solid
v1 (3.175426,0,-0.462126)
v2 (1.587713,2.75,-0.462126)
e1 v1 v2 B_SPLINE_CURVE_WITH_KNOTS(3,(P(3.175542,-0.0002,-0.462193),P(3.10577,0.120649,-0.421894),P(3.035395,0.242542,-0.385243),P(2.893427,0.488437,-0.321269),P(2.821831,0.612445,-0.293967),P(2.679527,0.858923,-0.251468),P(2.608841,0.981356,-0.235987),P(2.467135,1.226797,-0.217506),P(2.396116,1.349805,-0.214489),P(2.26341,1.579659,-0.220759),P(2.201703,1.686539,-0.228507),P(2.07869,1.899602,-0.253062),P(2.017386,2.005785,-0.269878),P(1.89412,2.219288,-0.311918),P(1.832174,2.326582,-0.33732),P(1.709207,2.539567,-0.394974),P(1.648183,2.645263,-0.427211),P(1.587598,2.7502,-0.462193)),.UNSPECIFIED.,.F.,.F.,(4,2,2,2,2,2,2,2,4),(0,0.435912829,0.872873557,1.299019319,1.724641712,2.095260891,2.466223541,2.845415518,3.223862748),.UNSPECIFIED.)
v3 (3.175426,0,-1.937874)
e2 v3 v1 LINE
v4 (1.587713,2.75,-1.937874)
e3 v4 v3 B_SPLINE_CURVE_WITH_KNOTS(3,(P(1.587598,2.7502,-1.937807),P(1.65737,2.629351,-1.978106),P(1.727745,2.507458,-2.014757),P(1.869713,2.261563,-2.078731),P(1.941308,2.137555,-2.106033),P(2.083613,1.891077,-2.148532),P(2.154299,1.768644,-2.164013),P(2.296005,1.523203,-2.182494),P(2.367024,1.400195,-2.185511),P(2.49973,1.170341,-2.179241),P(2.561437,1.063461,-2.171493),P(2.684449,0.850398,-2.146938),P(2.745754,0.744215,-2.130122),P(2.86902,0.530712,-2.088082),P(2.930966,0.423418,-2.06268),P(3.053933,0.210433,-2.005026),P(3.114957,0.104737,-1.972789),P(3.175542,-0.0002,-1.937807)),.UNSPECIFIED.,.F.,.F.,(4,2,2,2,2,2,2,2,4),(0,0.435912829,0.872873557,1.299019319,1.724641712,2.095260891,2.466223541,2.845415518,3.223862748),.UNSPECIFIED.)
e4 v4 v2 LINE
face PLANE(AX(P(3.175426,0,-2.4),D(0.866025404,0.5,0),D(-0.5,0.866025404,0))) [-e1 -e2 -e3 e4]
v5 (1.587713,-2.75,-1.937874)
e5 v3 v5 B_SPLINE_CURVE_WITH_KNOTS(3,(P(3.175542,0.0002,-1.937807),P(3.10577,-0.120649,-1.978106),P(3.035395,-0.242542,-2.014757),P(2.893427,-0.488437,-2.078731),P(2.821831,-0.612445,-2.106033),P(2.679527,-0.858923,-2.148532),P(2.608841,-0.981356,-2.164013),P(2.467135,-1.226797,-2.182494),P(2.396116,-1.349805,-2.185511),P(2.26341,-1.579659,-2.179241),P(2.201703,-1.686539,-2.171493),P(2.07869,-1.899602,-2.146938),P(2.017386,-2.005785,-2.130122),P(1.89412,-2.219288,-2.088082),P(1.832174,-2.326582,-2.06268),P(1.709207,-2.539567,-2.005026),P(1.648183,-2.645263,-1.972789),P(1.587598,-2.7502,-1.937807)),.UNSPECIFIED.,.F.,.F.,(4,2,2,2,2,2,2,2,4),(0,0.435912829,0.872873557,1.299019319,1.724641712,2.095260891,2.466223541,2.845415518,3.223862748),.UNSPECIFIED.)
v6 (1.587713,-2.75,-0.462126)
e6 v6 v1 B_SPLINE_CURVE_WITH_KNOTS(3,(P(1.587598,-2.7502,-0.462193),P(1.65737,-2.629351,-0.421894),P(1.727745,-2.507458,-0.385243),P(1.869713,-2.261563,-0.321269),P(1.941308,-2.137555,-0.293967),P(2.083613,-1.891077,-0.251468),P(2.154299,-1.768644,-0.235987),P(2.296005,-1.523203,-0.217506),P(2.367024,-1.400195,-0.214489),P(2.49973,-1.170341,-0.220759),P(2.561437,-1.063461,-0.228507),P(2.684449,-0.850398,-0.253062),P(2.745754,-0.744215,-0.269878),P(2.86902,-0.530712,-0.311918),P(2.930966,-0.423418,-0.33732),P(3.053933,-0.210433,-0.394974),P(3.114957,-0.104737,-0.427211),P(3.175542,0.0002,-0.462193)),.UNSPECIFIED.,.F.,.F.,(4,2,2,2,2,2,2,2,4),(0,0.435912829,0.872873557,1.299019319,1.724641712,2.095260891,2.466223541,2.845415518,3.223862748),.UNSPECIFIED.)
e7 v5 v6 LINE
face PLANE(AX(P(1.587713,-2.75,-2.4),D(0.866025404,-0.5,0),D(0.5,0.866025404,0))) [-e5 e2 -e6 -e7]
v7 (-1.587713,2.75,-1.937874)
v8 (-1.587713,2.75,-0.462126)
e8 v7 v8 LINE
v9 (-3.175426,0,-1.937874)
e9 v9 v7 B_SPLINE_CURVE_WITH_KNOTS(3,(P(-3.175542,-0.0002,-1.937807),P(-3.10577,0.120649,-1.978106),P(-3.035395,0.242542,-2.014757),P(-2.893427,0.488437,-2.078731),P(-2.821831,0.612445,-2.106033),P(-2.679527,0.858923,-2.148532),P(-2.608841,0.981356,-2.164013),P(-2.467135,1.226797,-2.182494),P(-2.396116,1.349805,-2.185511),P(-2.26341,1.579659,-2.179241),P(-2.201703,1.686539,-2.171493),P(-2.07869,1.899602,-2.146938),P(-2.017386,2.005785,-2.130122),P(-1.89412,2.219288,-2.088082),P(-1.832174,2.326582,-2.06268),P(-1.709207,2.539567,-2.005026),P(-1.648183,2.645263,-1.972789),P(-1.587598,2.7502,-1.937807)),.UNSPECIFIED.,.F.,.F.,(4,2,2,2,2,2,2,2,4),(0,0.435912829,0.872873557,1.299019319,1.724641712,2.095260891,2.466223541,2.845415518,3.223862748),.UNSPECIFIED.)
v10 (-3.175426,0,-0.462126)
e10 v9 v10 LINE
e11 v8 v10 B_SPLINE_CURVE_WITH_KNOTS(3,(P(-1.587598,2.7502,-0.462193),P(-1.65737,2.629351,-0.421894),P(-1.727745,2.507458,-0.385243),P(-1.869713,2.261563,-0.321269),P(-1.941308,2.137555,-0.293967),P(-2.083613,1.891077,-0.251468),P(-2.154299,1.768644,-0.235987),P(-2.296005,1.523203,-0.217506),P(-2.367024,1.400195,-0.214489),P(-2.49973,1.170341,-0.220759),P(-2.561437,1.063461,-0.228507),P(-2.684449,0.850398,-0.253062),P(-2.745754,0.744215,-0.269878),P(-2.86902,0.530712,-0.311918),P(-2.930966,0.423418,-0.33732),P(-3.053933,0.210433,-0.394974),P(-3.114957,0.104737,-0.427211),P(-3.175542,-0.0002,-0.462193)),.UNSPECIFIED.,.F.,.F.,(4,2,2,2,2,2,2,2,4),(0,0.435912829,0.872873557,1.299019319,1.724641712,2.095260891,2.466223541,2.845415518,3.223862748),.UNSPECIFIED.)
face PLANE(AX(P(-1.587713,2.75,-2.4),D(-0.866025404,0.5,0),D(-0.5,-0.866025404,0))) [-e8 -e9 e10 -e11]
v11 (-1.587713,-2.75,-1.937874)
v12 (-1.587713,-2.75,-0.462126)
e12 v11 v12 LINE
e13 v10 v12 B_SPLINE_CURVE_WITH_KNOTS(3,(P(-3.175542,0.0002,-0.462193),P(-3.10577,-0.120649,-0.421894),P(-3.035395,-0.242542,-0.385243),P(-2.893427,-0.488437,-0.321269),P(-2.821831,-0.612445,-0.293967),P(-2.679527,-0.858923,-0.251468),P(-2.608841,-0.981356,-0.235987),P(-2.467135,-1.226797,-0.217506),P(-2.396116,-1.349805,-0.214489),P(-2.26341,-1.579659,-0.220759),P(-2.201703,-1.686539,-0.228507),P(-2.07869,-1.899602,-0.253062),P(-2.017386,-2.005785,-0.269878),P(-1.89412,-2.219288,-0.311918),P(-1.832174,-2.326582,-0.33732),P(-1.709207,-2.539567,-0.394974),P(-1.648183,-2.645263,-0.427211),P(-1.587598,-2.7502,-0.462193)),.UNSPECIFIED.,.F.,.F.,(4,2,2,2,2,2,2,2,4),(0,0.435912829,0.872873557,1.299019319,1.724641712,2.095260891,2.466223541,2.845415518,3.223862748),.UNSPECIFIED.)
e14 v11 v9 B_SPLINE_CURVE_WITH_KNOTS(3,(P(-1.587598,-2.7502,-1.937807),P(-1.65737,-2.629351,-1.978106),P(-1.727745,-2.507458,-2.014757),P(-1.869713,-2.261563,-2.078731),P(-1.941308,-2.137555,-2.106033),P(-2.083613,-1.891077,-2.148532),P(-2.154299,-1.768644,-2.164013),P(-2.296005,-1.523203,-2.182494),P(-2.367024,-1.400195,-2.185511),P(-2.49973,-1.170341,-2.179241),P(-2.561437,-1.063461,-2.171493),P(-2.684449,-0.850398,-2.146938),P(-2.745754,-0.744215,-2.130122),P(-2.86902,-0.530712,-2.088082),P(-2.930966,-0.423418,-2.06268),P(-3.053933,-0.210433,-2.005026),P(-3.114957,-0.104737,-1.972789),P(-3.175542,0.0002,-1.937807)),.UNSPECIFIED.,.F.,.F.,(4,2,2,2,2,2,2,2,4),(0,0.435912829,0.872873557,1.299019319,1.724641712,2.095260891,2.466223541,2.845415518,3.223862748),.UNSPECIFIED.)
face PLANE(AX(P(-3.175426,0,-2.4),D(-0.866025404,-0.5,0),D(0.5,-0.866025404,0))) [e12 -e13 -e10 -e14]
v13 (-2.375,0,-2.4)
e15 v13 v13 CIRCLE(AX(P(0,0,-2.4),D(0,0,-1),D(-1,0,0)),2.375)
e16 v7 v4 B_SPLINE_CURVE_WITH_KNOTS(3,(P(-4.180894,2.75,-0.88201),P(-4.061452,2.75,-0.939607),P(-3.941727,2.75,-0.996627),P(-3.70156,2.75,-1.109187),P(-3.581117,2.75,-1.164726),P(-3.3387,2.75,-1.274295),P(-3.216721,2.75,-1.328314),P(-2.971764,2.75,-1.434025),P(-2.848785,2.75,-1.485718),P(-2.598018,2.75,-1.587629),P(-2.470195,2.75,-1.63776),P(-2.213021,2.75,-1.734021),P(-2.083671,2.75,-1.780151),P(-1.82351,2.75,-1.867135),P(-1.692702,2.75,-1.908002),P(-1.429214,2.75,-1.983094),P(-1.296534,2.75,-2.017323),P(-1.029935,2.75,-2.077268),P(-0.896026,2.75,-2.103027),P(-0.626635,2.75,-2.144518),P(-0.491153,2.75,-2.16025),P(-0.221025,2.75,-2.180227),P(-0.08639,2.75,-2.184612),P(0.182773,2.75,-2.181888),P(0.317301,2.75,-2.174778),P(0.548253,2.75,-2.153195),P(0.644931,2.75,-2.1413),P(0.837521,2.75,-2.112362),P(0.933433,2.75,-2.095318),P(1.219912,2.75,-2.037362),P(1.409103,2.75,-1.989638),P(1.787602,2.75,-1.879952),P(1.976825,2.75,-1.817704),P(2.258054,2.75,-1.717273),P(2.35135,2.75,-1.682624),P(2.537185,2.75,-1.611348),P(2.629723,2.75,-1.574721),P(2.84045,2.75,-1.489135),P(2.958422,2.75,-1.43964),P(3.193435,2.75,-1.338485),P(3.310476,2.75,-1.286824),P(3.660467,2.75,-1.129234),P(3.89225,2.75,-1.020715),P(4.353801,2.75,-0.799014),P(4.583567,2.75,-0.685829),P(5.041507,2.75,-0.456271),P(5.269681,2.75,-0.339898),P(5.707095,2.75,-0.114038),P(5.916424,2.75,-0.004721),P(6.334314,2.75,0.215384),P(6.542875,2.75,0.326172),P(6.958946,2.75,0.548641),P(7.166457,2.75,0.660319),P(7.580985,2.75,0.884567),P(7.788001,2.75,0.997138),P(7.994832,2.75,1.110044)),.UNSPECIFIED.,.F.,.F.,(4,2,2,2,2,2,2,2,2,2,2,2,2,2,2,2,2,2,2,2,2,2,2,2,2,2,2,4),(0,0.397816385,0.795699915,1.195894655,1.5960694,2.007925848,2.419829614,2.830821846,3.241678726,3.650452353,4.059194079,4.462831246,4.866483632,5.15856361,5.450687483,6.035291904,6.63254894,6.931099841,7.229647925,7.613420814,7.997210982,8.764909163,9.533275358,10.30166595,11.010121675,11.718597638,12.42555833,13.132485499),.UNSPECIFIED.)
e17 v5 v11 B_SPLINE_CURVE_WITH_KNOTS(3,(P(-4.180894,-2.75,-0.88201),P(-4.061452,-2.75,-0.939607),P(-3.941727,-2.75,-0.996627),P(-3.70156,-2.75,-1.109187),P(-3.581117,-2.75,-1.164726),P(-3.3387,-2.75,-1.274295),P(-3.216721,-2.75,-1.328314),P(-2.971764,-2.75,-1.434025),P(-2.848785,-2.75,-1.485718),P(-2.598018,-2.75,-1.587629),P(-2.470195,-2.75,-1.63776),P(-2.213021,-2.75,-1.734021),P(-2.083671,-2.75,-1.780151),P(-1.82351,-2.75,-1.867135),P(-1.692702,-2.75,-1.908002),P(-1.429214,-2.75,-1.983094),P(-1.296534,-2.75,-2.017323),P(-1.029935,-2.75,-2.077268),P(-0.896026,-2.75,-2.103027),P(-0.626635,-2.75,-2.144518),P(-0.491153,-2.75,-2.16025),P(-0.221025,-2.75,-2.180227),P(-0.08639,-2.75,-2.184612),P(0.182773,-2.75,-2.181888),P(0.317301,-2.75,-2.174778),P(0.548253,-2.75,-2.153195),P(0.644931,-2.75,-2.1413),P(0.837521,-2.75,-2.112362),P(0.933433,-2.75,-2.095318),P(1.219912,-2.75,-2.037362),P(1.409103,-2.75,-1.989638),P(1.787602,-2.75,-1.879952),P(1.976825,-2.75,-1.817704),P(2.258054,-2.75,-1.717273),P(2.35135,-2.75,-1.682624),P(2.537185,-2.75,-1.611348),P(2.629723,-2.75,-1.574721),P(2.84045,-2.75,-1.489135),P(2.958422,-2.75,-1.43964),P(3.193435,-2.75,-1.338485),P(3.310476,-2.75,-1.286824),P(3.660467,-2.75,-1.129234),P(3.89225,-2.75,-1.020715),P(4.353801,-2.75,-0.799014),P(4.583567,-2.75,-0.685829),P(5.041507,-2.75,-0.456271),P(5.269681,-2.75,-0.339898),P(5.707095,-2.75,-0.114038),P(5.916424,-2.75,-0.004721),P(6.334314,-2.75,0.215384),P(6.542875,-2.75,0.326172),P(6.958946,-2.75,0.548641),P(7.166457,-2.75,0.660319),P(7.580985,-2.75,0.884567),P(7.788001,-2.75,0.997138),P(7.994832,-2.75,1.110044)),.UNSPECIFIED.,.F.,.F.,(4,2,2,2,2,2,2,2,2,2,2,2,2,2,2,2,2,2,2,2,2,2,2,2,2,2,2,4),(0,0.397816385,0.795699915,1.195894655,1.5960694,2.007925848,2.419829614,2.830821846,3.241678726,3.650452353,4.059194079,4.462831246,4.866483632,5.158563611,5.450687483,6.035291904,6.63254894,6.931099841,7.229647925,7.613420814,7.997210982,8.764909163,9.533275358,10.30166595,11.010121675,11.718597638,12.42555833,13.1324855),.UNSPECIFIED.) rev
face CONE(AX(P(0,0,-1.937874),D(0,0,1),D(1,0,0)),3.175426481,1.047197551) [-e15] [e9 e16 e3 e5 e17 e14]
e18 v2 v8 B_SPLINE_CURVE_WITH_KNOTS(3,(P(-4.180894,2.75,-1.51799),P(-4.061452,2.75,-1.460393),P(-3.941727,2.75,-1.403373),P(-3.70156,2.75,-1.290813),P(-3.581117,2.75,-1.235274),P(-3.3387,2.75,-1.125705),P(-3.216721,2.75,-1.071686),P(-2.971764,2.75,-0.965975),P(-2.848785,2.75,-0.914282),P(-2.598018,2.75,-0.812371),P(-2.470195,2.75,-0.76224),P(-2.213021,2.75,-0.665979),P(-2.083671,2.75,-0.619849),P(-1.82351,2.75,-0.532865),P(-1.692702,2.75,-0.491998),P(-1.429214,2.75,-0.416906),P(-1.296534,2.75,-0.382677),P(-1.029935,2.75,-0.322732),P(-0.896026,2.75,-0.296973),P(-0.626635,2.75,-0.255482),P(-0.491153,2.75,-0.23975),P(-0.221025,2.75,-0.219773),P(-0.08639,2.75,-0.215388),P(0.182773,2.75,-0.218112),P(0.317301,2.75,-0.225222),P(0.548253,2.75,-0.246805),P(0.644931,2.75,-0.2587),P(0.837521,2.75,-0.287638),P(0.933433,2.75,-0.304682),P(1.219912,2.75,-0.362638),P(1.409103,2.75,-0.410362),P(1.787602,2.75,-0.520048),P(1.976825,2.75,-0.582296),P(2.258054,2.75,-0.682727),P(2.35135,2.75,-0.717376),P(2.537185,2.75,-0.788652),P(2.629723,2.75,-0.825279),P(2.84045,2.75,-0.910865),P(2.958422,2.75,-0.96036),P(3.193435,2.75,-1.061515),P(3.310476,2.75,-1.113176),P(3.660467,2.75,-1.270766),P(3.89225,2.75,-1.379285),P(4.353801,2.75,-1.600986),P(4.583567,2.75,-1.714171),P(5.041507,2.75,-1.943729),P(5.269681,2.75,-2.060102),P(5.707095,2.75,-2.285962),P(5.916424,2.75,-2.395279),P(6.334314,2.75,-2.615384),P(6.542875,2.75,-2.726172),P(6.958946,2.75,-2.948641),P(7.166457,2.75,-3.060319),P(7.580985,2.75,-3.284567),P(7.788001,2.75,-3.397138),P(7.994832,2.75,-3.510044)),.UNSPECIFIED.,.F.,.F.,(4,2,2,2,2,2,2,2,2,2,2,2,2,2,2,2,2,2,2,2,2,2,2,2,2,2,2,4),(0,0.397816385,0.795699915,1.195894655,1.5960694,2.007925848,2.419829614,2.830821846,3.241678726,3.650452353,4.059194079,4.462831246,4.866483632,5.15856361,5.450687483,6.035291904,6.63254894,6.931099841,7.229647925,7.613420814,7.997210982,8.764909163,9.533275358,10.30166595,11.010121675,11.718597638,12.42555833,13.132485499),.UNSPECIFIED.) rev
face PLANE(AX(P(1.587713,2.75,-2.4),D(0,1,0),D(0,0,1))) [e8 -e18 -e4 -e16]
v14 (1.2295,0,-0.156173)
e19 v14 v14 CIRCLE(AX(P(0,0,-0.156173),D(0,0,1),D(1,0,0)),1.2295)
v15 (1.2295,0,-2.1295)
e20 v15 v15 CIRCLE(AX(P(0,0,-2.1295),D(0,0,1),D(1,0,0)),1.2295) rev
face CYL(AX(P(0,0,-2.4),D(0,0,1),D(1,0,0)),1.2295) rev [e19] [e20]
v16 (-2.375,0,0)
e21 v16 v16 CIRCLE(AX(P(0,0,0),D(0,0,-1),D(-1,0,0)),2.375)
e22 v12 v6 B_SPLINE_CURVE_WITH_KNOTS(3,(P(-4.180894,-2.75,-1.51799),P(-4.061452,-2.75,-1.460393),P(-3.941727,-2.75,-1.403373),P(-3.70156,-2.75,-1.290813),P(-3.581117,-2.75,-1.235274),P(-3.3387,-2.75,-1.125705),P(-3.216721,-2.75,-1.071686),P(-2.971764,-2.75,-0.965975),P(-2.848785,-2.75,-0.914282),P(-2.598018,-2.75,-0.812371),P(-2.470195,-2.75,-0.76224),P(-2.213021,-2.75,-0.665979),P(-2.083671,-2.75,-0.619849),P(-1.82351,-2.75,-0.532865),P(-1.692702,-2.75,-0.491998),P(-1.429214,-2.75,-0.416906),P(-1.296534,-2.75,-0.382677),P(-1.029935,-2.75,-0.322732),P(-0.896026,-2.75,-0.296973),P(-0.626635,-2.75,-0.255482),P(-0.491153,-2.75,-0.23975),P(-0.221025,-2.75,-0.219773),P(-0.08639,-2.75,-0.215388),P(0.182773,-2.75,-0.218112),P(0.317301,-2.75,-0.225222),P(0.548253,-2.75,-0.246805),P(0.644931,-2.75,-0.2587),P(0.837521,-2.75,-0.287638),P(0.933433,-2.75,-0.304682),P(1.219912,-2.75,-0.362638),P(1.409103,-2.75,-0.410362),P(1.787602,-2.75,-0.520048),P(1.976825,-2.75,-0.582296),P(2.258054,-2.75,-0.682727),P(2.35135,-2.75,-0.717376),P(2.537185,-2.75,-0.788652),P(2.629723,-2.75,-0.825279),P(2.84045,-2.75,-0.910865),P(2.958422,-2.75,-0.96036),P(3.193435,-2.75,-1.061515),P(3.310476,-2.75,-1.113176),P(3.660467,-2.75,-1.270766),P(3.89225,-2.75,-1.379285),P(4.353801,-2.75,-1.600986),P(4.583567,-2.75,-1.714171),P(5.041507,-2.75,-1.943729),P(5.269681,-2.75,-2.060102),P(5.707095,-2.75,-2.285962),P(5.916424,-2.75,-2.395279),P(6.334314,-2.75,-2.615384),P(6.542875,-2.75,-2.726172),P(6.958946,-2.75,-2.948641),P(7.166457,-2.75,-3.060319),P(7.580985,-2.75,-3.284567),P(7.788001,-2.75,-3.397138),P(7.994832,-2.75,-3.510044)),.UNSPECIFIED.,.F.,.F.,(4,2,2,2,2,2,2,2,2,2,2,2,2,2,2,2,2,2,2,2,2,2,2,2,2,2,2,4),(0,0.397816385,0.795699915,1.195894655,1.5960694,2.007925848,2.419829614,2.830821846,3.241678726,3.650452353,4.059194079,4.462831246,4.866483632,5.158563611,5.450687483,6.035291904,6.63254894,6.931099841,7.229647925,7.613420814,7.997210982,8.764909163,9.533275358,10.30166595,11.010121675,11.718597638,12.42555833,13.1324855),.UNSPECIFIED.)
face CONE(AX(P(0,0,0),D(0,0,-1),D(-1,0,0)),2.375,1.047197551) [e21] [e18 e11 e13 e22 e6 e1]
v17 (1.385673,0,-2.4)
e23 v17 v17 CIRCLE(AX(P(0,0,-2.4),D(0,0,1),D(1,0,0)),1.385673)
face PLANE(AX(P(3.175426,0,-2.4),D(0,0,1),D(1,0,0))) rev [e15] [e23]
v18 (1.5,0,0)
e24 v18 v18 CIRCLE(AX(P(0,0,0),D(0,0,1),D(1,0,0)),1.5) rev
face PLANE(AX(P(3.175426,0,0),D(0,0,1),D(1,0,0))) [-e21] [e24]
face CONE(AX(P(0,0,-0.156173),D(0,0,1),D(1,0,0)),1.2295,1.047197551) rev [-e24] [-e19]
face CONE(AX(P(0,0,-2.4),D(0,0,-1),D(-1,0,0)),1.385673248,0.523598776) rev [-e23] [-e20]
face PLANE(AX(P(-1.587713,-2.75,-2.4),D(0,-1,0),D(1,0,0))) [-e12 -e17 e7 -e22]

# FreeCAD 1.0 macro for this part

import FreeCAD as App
import Part
import Sketcher
Q = App.Units.Quantity


def edges_at(feature, points):
    """Names of the edges that pass closest to the given points."""
    edges = feature.Shape.Edges
    near = lambda p: min(range(len(edges)), key=lambda i: edges[i].distToShape(Part.Vertex(*p))[0])
    return sorted({f"Edge{near(p) + 1}" for p in points})

doc = App.newDocument("Part")
body = doc.addObject("PartDesign::Body", "Body")

# Sketch on XY plane
sketch1 = body.newObject("Sketcher::SketchObject", "Sketch")
sketch1.AttachmentSupport = (doc.getObject("XY_Plane"), [""])
sketch1.MapMode = "FlatFace"
sketch1.addGeometry([
    Part.LineSegment(App.Vector(3.175426, 0, 0), App.Vector(1.587713, 2.75, 0)),  # 0
    Part.LineSegment(App.Vector(1.587713, 2.75, 0), App.Vector(-1.587713, 2.75, 0)),  # 1
    Part.LineSegment(App.Vector(-1.587713, 2.75, 0), App.Vector(-3.175426, 0, 0)),  # 2
    Part.LineSegment(App.Vector(-3.175426, 0, 0), App.Vector(-1.587713, -2.75, 0)),  # 3
    Part.LineSegment(App.Vector(-1.587713, -2.75, 0), App.Vector(1.587713, -2.75, 0)),  # 4
    Part.LineSegment(App.Vector(1.587713, -2.75, 0), App.Vector(3.175426, 0, 0)),  # 5
    Part.Circle(App.Vector(0, 0, 0), App.Vector(0, 0, 1), 1.2295),  # 6
], False)
sketch1.addConstraint([
    Sketcher.Constraint("Coincident", 0, 2, 1, 1),
    Sketcher.Constraint("Coincident", 1, 2, 2, 1),
    Sketcher.Constraint("Coincident", 2, 2, 3, 1),
    Sketcher.Constraint("Coincident", 3, 2, 4, 1),
    Sketcher.Constraint("Coincident", 4, 2, 5, 1),
    Sketcher.Constraint("Coincident", 5, 2, 0, 1),
    Sketcher.Constraint("Horizontal", 1),
    Sketcher.Constraint("Horizontal", 4),
    Sketcher.Constraint("Coincident", 6, 3, -1, 1),
    Sketcher.Constraint("Symmetric", 0, 2, 3, 2, -1, 1),
    Sketcher.Constraint("Symmetric", 2, 2, 5, 2, -1, 1),
    Sketcher.Constraint("PointOnObject", 2, 2, -1),
    Sketcher.Constraint("Parallel", 2, 5),
    Sketcher.Constraint("Vertical", 1, 2, 3, 2),
    Sketcher.Constraint("Angle", 0, Q("120 deg")),
    Sketcher.Constraint("Diameter", 6, Q("2.459 mm")),
    Sketcher.Constraint("DistanceY", 3, 2, 1, 2, Q("5.5 mm")),
    Sketcher.Constraint("DistanceX", 1, 2, 1, 1, Q("3.175426 mm")),
])
pad1 = body.newObject("PartDesign::Pad", "Pad")
pad1.Profile = sketch1
pad1.Length = 2.4
pad1.Reversed = True

# Sketch on XZ plane
sketch2 = body.newObject("Sketcher::SketchObject", "Sketch001")
sketch2.AttachmentSupport = (doc.getObject("XZ_Plane"), [""])
sketch2.MapMode = "FlatFace"
sketch2.addGeometry([
    Part.LineSegment(App.Vector(-2.375, -2.4, 0), App.Vector(-3.175426, -2.4, 0)),  # 0
    Part.LineSegment(App.Vector(-3.175426, -2.4, 0), App.Vector(-3.175426, -1.937874, 0)),  # 1
    Part.LineSegment(App.Vector(-3.175426, -1.937874, 0), App.Vector(-2.375, -2.4, 0)),  # 2
    Part.LineSegment(App.Vector(-3.175426, -0.462126, 0), App.Vector(-3.175426, 0, 0)),  # 3
    Part.LineSegment(App.Vector(-3.175426, 0, 0), App.Vector(-2.375, 0, 0)),  # 4
    Part.LineSegment(App.Vector(-2.375, 0, 0), App.Vector(-3.175426, -0.462126, 0)),  # 5
], False)
sketch2.addConstraint([
    Sketcher.Constraint("Coincident", 0, 2, 1, 1),
    Sketcher.Constraint("Coincident", 1, 2, 2, 1),
    Sketcher.Constraint("Coincident", 2, 2, 0, 1),
    Sketcher.Constraint("Coincident", 3, 2, 4, 1),
    Sketcher.Constraint("Coincident", 4, 2, 5, 1),
    Sketcher.Constraint("Coincident", 5, 2, 3, 1),
    Sketcher.Constraint("Horizontal", 0),
    Sketcher.Constraint("Vertical", 1),
    Sketcher.Constraint("Vertical", 3),
    Sketcher.Constraint("Horizontal", 4),
    Sketcher.Constraint("PointOnObject", 3, 2, -1),
    Sketcher.Constraint("Vertical", 1, 2, 3, 2),
    Sketcher.Constraint("Vertical", 2, 2, 4, 2),
    Sketcher.Constraint("Equal", 1, 3),
    Sketcher.Constraint("Angle", 2, Q("-30 deg")),
    Sketcher.Constraint("DistanceY", 0, 2, -1, 1, Q("2.4 mm")),
    Sketcher.Constraint("DistanceX", 2, 2, -1, 1, Q("2.375 mm")),
    Sketcher.Constraint("DistanceX", 0, 2, 0, 1, Q("0.800426 mm")),
])
groove = body.newObject("PartDesign::Groove", "Groove")
groove.Profile = sketch2
groove.ReferenceAxis = (sketch2, ["V_Axis"])
groove.Angle = 360
doc.recompute()

chamfer = body.newObject("PartDesign::Chamfer", "Chamfer")
chamfer.Base = (groove, edges_at(groove, [(-1.23, 0, -2.4)]))
chamfer.ChamferType = "Two distances"
chamfer.Size = 0.2705
chamfer.Size2 = 0.156173
chamfer.FlipDirection = True
doc.recompute()

chamfer2 = body.newObject("PartDesign::Chamfer", "Chamfer001")
chamfer2.Base = (chamfer, edges_at(chamfer, [(-1.23, 0, 0)]))
chamfer2.ChamferType = "Two distances"
chamfer2.Size = 0.2705
chamfer2.Size2 = 0.156173
chamfer2.FlipDirection = True

doc.recompute()
